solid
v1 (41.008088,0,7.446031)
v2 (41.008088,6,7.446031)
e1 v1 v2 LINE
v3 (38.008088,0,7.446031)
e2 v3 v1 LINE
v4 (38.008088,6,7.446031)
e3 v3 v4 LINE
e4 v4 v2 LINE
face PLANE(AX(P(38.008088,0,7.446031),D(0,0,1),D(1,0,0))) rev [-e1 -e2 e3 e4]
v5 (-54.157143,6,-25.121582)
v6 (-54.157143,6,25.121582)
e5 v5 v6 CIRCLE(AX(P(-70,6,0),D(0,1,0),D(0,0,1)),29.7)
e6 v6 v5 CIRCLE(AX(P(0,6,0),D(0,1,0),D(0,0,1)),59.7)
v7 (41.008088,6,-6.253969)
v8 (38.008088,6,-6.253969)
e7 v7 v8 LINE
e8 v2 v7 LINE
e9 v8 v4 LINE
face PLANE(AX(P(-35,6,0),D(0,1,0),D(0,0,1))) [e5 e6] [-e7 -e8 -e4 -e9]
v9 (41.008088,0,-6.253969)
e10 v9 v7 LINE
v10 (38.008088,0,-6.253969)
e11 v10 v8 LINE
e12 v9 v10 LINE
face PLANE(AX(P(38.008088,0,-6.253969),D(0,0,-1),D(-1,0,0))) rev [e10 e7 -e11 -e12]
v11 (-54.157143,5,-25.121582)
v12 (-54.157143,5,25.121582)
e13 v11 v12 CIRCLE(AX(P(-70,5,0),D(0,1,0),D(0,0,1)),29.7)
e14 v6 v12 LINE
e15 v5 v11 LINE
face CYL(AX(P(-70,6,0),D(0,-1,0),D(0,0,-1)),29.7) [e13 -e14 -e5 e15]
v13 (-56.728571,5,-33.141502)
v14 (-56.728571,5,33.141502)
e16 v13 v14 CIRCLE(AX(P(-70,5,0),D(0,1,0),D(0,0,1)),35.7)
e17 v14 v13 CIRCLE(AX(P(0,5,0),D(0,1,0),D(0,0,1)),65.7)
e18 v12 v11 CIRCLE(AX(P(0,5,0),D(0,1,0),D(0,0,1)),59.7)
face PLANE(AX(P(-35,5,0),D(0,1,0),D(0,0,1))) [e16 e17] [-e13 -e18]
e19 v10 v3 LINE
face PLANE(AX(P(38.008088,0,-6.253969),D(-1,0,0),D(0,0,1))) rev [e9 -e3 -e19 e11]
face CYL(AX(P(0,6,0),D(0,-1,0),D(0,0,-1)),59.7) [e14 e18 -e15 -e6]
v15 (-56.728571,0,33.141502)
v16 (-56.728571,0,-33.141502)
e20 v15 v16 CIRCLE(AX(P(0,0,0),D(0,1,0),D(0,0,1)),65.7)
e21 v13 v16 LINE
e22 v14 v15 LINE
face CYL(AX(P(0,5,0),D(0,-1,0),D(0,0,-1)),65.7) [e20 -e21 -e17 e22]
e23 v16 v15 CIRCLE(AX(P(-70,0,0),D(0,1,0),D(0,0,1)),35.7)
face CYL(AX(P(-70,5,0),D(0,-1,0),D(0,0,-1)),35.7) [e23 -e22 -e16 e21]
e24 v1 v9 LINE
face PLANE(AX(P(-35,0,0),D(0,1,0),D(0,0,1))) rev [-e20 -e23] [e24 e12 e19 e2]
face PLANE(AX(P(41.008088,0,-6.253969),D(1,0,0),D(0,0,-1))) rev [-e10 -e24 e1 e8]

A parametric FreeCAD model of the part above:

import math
import FreeCAD as App
import Part
import Sketcher
from FreeCAD import Vector
Q = App.Units.Quantity


def add_polygon(sketch, points):
    """Adds a closed chain of lines whose ends are joined by coincident constraints."""
    first, n = sketch.GeometryCount, len(points)
    for a, b in zip(points, points[1:] + points[:1]):
        sketch.addGeometry(Part.LineSegment(App.Vector(*a, 0), App.Vector(*b, 0)), False)
    for i in range(n):
        sketch.addConstraint(Sketcher.Constraint("Coincident", first + i, 2, first + (i + 1) % n, 1))

doc = App.newDocument("Part")
params = doc.addObject("Spreadsheet::Sheet", "Params")
for row, (alias, value) in enumerate([
    ("sketch1_radius", "59.7 mm"),
    ("sketch1_radius2", "29.7 mm"),
    ("pad1_length", "6 mm"),
    ("sketch2_radius", "65.7 mm"),
    ("sketch2_radius2", "35.7 mm"),
    ("sketch2_radius3", "59.7 mm"),
    ("sketch2_radius4", "29.7 mm"),
    ("pad2_length", "5 mm"),
    ("sketch3_width", "3 mm"),
    ("sketch3_height", "13.7 mm"),
], start=1):
    params.set(f"A{row}", alias)
    params.set(f"B{row}", "=" + value)
    params.setAlias(f"B{row}", alias)

body = doc.addObject("PartDesign::Body", "Body")

# Sketch on XZ plane
sketch1 = doc.addObject("Sketcher::SketchObject", "Sketch")
body.addObject(sketch1)
sketch1.AttachmentSupport = (doc.XZ_Plane, [""])
sketch1.MapMode = "FlatFace"
sketch1.addGeometry(Part.ArcOfCircle(Part.Circle(Vector(0, 0, 0), Vector(0, 0, 1), 60), math.radians(-155), math.radians(155)), False)
sketch1.addGeometry(Part.ArcOfCircle(Part.Circle(Vector(-70, 0, 0), Vector(0, 0, 1), 30), math.radians(58), math.radians(302)), False)
sketch1.addConstraint(Sketcher.Constraint("Coincident", 0, 1, 1, 2))
sketch1.addConstraint(Sketcher.Constraint("Coincident", 1, 1, 0, 2))
sketch1.addConstraint(Sketcher.Constraint("Coincident", 0, 3, -1, 1))
sketch1.addConstraint(Sketcher.Constraint("PointOnObject", 1, 3, -1))
sketch1.addConstraint(Sketcher.Constraint("Radius", 0, Q("59.7 mm")))
sketch1.addConstraint(Sketcher.Constraint("Radius", 1, Q("29.7 mm")))
sketch1.addConstraint(Sketcher.Constraint("DistanceX", 1, 3, -1, 1, Q("70 mm")))
sketch1.setExpression("Constraints[4]", "Params.sketch1_radius")
sketch1.setExpression("Constraints[5]", "Params.sketch1_radius2")
pad1 = doc.addObject("PartDesign::Pad", "Pad")
body.addObject(pad1)
pad1.Profile = sketch1
pad1.setExpression("Length", "Params.pad1_length")
pad1.Reversed = True

# Sketch on XZ plane
sketch2 = doc.addObject("Sketcher::SketchObject", "Sketch001")
body.addObject(sketch2)
sketch2.AttachmentSupport = (doc.XZ_Plane, [""])
sketch2.MapMode = "FlatFace"
sketch2.addGeometry(Part.ArcOfCircle(Part.Circle(Vector(0, 0, 0), Vector(0, 0, 1), 66), math.radians(-150), math.radians(150)), False)
sketch2.addGeometry(Part.ArcOfCircle(Part.Circle(Vector(-70, 0, 0), Vector(0, 0, 1), 36), math.radians(68), math.radians(292)), False)
sketch2.addGeometry(Part.ArcOfCircle(Part.Circle(Vector(0, 0, 0), Vector(0, 0, 1), 60), math.radians(-155), math.radians(155)), False)
sketch2.addGeometry(Part.ArcOfCircle(Part.Circle(Vector(-70, 0, 0), Vector(0, 0, 1), 30), math.radians(58), math.radians(302)), False)
sketch2.addConstraint(Sketcher.Constraint("Coincident", 0, 1, 1, 2))
sketch2.addConstraint(Sketcher.Constraint("Coincident", 1, 1, 0, 2))
sketch2.addConstraint(Sketcher.Constraint("Coincident", 2, 1, 3, 2))
sketch2.addConstraint(Sketcher.Constraint("Coincident", 3, 1, 2, 2))
sketch2.addConstraint(Sketcher.Constraint("Coincident", 0, 3, -1, 1))
sketch2.addConstraint(Sketcher.Constraint("Coincident", 2, 3, -1, 1))
sketch2.addConstraint(Sketcher.Constraint("Coincident", 3, 3, 1, 3))
sketch2.addConstraint(Sketcher.Constraint("PointOnObject", 1, 3, -1))
sketch2.addConstraint(Sketcher.Constraint("Radius", 0, Q("65.7 mm")))
sketch2.addConstraint(Sketcher.Constraint("Radius", 1, Q("35.7 mm")))
sketch2.addConstraint(Sketcher.Constraint("Radius", 2, Q("59.7 mm")))
sketch2.addConstraint(Sketcher.Constraint("Radius", 3, Q("29.7 mm")))
sketch2.addConstraint(Sketcher.Constraint("DistanceX", 1, 3, -1, 1, Q("70 mm")))
sketch2.setExpression("Constraints[8]", "Params.sketch2_radius")
sketch2.setExpression("Constraints[9]", "Params.sketch2_radius2")
sketch2.setExpression("Constraints[10]", "Params.sketch2_radius3")
sketch2.setExpression("Constraints[11]", "Params.sketch2_radius4")
pad2 = doc.addObject("PartDesign::Pad", "Pad001")
body.addObject(pad2)
pad2.Profile = sketch2
pad2.setExpression("Length", "Params.pad2_length")
pad2.Reversed = True

# Sketch on XZ plane
sketch3 = doc.addObject("Sketcher::SketchObject", "Sketch002")
body.addObject(sketch3)
sketch3.AttachmentSupport = (doc.XZ_Plane, [""])
sketch3.MapMode = "FlatFace"
sketch3.AttachmentOffset = App.Placement(Vector(0, 0, -6), App.Rotation())
add_polygon(sketch3, [(38, -6.3), (38, 7.4), (41, 7.4), (41, -6.3)])  # lines 0-3
sketch3.addConstraint(Sketcher.Constraint("Vertical", 0))
sketch3.addConstraint(Sketcher.Constraint("Horizontal", 1))
sketch3.addConstraint(Sketcher.Constraint("Vertical", 2))
sketch3.addConstraint(Sketcher.Constraint("Horizontal", 3))
sketch3.addConstraint(Sketcher.Constraint("DistanceX", 1, 1, 1, 2, Q("3 mm")))
sketch3.addConstraint(Sketcher.Constraint("DistanceY", 0, 1, 0, 2, Q("13.7 mm")))
sketch3.addConstraint(Sketcher.Constraint("DistanceY", -1, 1, 0, 2, Q("7.446031 mm")))
sketch3.addConstraint(Sketcher.Constraint("DistanceX", -1, 1, 0, 2, Q("38.008088 mm")))
sketch3.setExpression("Constraints[8]", "Params.sketch3_width")
sketch3.setExpression("Constraints[9]", "Params.sketch3_height")
pocket1 = doc.addObject("PartDesign::Pocket", "Pocket")
body.addObject(pocket1)
pocket1.Profile = sketch3
pocket1.Type = "ThroughAll"
pocket1.Reversed = True

doc.recompute()
